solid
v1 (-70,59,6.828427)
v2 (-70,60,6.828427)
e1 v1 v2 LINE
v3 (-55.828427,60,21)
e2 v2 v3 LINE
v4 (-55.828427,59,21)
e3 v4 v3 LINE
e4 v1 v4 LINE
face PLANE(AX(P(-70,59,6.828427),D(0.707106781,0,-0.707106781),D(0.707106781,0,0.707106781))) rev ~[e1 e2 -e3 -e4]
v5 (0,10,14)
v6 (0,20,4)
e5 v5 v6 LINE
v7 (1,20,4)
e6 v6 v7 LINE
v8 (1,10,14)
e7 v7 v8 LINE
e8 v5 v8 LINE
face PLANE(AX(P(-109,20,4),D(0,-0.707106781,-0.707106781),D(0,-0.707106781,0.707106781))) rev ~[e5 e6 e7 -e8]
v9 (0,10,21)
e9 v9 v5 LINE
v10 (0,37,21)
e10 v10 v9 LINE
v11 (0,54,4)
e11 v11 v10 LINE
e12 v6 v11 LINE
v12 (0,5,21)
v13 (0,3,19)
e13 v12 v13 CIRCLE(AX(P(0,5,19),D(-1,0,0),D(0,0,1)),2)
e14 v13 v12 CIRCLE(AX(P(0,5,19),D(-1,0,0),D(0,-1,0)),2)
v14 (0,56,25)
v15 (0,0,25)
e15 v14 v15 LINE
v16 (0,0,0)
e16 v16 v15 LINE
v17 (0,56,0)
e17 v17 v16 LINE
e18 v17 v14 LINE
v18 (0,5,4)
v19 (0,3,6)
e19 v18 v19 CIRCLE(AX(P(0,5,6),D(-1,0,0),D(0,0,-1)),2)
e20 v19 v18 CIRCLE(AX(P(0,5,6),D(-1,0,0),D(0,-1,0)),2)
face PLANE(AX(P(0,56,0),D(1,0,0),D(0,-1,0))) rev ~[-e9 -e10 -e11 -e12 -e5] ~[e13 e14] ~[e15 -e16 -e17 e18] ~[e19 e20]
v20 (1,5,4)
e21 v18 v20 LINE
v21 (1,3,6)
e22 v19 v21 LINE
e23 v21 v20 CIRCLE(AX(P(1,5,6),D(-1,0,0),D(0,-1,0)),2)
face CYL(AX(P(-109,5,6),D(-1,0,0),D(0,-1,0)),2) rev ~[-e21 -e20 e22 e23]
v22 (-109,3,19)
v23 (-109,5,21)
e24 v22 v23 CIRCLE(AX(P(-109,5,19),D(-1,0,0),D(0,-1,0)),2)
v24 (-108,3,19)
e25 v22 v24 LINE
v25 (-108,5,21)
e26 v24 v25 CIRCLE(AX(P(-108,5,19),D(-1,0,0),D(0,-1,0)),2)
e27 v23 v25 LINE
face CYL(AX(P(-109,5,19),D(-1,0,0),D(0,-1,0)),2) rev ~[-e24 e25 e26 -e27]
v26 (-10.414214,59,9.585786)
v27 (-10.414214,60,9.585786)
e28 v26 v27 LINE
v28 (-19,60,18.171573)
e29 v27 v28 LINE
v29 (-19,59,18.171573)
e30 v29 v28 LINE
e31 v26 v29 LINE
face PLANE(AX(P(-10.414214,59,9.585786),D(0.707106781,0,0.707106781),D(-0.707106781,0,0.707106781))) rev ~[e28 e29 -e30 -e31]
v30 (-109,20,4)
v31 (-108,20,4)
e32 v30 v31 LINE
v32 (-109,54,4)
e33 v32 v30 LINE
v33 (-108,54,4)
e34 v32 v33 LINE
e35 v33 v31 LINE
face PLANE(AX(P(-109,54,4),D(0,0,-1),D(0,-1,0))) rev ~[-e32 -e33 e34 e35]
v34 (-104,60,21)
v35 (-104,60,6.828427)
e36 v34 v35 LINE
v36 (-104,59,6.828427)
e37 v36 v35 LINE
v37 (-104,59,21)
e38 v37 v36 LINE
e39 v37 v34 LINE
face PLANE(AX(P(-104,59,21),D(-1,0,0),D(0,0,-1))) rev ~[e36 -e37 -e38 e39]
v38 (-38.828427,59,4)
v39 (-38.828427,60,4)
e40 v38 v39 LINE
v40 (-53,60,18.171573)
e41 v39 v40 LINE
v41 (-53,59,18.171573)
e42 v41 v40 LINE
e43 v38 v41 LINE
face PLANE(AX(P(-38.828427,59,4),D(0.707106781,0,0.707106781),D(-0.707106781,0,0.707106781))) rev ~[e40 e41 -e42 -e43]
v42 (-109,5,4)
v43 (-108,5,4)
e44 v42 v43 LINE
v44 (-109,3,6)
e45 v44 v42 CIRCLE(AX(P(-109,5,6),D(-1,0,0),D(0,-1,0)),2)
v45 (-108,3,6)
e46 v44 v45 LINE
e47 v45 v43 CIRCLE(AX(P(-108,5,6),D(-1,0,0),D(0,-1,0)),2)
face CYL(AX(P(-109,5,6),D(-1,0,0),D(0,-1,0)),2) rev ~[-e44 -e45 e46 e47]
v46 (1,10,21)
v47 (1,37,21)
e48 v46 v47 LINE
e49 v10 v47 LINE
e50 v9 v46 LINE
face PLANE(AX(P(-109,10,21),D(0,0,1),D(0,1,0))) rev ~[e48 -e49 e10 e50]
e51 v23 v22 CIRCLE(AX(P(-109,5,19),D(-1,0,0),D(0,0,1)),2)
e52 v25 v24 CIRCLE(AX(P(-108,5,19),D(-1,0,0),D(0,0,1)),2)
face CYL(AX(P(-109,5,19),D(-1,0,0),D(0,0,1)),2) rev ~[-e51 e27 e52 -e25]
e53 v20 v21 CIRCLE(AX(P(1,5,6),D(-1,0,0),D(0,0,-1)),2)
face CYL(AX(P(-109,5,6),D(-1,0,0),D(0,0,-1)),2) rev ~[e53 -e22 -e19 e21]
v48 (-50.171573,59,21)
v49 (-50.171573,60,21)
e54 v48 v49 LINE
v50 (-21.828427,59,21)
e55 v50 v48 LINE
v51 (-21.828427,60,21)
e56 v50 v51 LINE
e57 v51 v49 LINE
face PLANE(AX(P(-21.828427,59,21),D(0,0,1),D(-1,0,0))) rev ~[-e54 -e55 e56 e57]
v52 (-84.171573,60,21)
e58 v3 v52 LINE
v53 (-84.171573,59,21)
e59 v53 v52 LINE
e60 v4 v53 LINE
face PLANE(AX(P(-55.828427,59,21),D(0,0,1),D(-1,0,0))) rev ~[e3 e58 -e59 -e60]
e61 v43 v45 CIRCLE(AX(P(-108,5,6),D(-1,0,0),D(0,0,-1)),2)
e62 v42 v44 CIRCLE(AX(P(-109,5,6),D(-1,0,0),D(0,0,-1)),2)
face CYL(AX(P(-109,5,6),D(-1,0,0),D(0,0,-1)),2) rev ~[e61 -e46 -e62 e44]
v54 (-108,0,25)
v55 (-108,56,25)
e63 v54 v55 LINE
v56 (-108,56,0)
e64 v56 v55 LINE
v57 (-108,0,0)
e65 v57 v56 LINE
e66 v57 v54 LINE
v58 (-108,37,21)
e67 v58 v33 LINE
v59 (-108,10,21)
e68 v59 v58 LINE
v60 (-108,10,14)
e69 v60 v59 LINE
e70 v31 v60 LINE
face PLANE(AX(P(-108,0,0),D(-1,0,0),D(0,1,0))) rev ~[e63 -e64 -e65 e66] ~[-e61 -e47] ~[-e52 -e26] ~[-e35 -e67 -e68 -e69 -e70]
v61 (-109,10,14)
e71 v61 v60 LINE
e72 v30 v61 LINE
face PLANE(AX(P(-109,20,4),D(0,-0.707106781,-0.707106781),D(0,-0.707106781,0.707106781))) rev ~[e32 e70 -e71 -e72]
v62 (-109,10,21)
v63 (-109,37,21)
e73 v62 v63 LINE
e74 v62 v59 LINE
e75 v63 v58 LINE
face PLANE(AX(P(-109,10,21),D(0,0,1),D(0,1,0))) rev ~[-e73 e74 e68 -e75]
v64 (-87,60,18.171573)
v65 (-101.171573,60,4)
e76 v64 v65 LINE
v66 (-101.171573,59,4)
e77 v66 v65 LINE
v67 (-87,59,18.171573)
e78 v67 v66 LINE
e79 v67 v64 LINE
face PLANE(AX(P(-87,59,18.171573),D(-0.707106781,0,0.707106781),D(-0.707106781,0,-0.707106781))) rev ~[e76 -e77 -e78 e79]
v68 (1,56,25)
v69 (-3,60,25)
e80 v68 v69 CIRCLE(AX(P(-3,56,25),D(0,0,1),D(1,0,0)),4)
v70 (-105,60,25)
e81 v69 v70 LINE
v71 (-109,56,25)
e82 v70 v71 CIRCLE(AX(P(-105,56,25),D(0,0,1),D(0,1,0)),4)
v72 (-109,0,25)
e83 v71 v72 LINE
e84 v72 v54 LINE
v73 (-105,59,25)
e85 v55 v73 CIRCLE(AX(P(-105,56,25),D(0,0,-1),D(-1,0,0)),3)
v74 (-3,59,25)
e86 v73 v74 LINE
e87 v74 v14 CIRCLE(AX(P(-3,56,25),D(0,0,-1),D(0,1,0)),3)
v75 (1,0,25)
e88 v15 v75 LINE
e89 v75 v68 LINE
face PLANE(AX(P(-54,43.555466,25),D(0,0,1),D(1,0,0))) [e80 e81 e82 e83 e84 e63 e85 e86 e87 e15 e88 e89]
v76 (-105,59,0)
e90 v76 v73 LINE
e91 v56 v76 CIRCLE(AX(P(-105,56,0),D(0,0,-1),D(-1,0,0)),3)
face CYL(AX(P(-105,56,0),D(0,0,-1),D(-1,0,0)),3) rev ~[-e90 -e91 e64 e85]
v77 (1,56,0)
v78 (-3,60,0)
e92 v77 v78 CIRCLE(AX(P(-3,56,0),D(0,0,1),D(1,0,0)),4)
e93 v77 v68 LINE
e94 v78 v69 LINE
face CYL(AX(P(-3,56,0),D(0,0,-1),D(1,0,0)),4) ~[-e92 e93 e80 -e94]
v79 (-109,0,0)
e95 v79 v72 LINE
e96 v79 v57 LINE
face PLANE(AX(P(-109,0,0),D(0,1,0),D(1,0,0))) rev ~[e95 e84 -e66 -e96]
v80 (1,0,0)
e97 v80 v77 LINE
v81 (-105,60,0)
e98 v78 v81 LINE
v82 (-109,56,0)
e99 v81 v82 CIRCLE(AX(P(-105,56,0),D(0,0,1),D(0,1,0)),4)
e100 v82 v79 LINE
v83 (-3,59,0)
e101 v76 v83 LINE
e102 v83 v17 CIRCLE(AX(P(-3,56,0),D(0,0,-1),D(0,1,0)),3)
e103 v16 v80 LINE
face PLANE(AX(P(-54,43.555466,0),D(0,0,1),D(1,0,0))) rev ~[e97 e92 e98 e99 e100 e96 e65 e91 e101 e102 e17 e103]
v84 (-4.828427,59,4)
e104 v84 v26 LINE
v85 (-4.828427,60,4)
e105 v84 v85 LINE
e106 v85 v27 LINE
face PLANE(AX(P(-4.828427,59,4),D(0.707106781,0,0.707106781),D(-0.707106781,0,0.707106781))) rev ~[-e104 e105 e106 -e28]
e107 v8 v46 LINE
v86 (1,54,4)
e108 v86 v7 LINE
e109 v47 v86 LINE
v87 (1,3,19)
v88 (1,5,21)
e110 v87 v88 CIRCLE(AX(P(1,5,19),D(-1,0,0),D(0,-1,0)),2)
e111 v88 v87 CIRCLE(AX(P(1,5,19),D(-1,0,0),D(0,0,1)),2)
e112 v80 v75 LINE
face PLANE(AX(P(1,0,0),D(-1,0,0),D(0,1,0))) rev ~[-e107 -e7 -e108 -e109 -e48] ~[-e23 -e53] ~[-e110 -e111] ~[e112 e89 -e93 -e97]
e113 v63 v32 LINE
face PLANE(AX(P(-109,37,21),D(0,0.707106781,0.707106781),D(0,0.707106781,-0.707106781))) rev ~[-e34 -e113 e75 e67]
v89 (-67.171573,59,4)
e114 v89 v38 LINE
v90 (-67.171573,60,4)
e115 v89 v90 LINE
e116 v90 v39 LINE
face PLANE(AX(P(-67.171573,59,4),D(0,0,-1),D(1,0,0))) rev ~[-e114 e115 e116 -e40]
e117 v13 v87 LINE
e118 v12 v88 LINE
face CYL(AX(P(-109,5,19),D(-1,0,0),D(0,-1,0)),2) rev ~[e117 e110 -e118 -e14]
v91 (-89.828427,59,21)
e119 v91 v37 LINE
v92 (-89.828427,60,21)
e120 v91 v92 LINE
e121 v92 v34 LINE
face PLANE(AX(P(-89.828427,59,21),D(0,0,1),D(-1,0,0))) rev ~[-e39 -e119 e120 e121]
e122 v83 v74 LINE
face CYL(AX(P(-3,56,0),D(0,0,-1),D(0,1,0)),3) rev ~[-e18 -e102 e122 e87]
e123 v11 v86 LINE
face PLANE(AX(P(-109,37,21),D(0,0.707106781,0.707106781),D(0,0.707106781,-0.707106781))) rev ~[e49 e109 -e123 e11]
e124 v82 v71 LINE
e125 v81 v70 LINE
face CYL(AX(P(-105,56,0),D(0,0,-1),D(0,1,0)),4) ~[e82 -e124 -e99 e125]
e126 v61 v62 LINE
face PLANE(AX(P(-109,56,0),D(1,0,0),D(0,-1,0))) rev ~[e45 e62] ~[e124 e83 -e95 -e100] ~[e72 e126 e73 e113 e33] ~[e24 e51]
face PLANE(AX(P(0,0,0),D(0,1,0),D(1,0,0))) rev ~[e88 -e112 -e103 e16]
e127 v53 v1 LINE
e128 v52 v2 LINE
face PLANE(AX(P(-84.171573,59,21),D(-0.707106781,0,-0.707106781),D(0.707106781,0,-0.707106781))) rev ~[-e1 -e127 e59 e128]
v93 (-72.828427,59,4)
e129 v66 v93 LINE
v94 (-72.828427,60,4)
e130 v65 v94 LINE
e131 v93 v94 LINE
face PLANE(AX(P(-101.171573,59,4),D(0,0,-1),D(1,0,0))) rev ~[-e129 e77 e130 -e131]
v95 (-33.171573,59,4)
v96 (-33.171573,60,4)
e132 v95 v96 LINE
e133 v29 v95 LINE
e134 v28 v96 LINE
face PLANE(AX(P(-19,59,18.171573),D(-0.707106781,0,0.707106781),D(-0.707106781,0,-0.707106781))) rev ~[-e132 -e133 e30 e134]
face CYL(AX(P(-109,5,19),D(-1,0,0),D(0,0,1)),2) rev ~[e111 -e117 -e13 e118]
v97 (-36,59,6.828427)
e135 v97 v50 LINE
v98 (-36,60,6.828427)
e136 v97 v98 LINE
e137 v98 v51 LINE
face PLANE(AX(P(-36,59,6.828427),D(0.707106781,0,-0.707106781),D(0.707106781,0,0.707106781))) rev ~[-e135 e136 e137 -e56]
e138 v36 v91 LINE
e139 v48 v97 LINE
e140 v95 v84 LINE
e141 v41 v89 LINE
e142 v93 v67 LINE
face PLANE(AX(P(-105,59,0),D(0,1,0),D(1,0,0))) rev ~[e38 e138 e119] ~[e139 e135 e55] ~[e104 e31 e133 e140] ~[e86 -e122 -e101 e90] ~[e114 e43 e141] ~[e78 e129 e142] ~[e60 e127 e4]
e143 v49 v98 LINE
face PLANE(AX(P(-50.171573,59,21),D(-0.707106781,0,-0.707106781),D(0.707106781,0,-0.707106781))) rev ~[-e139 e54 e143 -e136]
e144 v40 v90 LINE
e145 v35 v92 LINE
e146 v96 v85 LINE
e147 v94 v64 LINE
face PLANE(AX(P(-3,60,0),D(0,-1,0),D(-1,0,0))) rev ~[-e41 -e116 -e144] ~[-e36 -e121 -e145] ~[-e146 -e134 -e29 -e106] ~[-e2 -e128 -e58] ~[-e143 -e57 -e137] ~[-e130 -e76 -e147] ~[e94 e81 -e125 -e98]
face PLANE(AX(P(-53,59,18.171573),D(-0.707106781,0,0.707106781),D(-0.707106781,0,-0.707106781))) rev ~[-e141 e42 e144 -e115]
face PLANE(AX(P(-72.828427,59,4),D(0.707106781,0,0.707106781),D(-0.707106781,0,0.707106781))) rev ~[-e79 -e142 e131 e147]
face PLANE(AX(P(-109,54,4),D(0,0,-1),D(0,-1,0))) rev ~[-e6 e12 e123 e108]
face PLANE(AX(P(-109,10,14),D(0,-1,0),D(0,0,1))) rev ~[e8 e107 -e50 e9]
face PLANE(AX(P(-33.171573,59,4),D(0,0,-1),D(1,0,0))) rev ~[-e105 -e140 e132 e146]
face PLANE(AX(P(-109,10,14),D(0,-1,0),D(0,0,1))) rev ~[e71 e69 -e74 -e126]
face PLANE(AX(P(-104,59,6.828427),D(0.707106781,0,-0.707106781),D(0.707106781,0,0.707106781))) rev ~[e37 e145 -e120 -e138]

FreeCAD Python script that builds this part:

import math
import FreeCAD as App
import Part
import Sketcher

V = App.Vector

doc = App.newDocument("Part")
body = doc.addObject("PartDesign::Body", "Body")

# Sketch on XY plane
sketch1 = body.newObject("Sketcher::SketchObject", "Sketch")
sketch1.AttachmentSupport = (doc.getObject("XY_Plane"), [""])
sketch1.MapMode = "FlatFace"
sketch1.addGeometry(Part.LineSegment(V(0, 56, 0), V(0, 0, 0)), False)
sketch1.addGeometry(Part.LineSegment(V(0, 0, 0), V(1, 0, 0)), False)
sketch1.addGeometry(Part.LineSegment(V(1, 0, 0), V(1, 56, 0)), False)
sketch1.addGeometry(Part.ArcOfCircle(Part.Circle(V(-3, 56, 0), V(0, 0, 1), 4), math.radians(0), math.radians(90)), False)
sketch1.addGeometry(Part.LineSegment(V(-3, 60, 0), V(-105, 60, 0)), False)
sketch1.addGeometry(Part.ArcOfCircle(Part.Circle(V(-105, 56, 0), V(0, 0, 1), 4), math.radians(90), math.radians(180)), False)
sketch1.addGeometry(Part.LineSegment(V(-109, 56, 0), V(-109, 0, 0)), False)
sketch1.addGeometry(Part.LineSegment(V(-109, 0, 0), V(-108, 0, 0)), False)
sketch1.addGeometry(Part.LineSegment(V(-108, 0, 0), V(-108, 56, 0)), False)
sketch1.addGeometry(Part.ArcOfCircle(Part.Circle(V(-105, 56, 0), V(0, 0, 1), 3), math.radians(90), math.radians(180)), False)
sketch1.addGeometry(Part.LineSegment(V(-105, 59, 0), V(-3, 59, 0)), False)
sketch1.addGeometry(Part.ArcOfCircle(Part.Circle(V(-3, 56, 0), V(0, 0, 1), 3), math.radians(0), math.radians(90)), False)
sketch1.addConstraint(Sketcher.Constraint("Coincident", 0, 2, 1, 1))
sketch1.addConstraint(Sketcher.Constraint("Coincident", 1, 2, 2, 1))
sketch1.addConstraint(Sketcher.Constraint("Tangent", 2, 2, 3, 1))
sketch1.addConstraint(Sketcher.Constraint("Tangent", 3, 2, 4, 1))
sketch1.addConstraint(Sketcher.Constraint("Tangent", 4, 2, 5, 1))
sketch1.addConstraint(Sketcher.Constraint("Tangent", 5, 2, 6, 1))
sketch1.addConstraint(Sketcher.Constraint("Coincident", 6, 2, 7, 1))
sketch1.addConstraint(Sketcher.Constraint("Coincident", 7, 2, 8, 1))
sketch1.addConstraint(Sketcher.Constraint("Tangent", 8, 2, 9, 2))
sketch1.addConstraint(Sketcher.Constraint("Tangent", 9, 1, 10, 1))
sketch1.addConstraint(Sketcher.Constraint("Tangent", 10, 2, 11, 2))
sketch1.addConstraint(Sketcher.Constraint("Tangent", 11, 1, 0, 1))
sketch1.addConstraint(Sketcher.Constraint("Vertical", 0))
sketch1.addConstraint(Sketcher.Constraint("Horizontal", 1))
sketch1.addConstraint(Sketcher.Constraint("Vertical", 2))
sketch1.addConstraint(Sketcher.Constraint("Horizontal", 4))
sketch1.addConstraint(Sketcher.Constraint("Vertical", 6))
sketch1.addConstraint(Sketcher.Constraint("Horizontal", 7))
sketch1.addConstraint(Sketcher.Constraint("Vertical", 8))
sketch1.addConstraint(Sketcher.Constraint("Horizontal", 10))
sketch1.addConstraint(Sketcher.Constraint("Coincident", 0, 2, -1, 1))
sketch1.addConstraint(Sketcher.Constraint("Coincident", 9, 3, 5, 3))
sketch1.addConstraint(Sketcher.Constraint("Coincident", 11, 3, 3, 3))
sketch1.addConstraint(Sketcher.Constraint("Equal", 3, 5))
sketch1.addConstraint(Sketcher.Constraint("PointOnObject", 6, 2, -1))
sketch1.addConstraint(Sketcher.Constraint("Radius", 3, 4.0))
sketch1.addConstraint(Sketcher.Constraint("Radius", 9, 3.0))
sketch1.addConstraint(Sketcher.Constraint("DistanceX", 4, 2, 4, 1, 102.0))
sketch1.addConstraint(Sketcher.Constraint("DistanceY", 0, 2, 0, 1, 56.0))
pad1 = body.newObject("PartDesign::Pad", "Pad")
pad1.Profile = sketch1
pad1.Length = 25

# Sketch on XZ plane
sketch2 = body.newObject("Sketcher::SketchObject", "Sketch001")
sketch2.AttachmentSupport = (doc.getObject("XZ_Plane"), [""])
sketch2.MapMode = "FlatFace"
sketch2.AttachmentOffset = App.Placement(V(0, 0, -59), App.Rotation())
sketch2.addGeometry(Part.LineSegment(V(-56, 21, 0), V(-84, 21, 0)), False)
sketch2.addGeometry(Part.LineSegment(V(-84, 21, 0), V(-70, 7, 0)), False)
sketch2.addGeometry(Part.LineSegment(V(-70, 7, 0), V(-56, 21, 0)), False)
sketch2.addGeometry(Part.LineSegment(V(-36, 7, 0), V(-22, 21, 0)), False)
sketch2.addGeometry(Part.LineSegment(V(-22, 21, 0), V(-50, 21, 0)), False)
sketch2.addGeometry(Part.LineSegment(V(-50, 21, 0), V(-36, 7, 0)), False)
sketch2.addGeometry(Part.LineSegment(V(-101, 4, 0), V(-73, 4, 0)), False)
sketch2.addGeometry(Part.LineSegment(V(-73, 4, 0), V(-87, 18, 0)), False)
sketch2.addGeometry(Part.LineSegment(V(-87, 18, 0), V(-101, 4, 0)), False)
sketch2.addGeometry(Part.LineSegment(V(-104, 21, 0), V(-104, 7, 0)), False)
sketch2.addGeometry(Part.LineSegment(V(-104, 7, 0), V(-90, 21, 0)), False)
sketch2.addGeometry(Part.LineSegment(V(-90, 21, 0), V(-104, 21, 0)), False)
sketch2.addGeometry(Part.LineSegment(V(-67, 4, 0), V(-39, 4, 0)), False)
sketch2.addGeometry(Part.LineSegment(V(-39, 4, 0), V(-53, 18, 0)), False)
sketch2.addGeometry(Part.LineSegment(V(-53, 18, 0), V(-67, 4, 0)), False)
sketch2.addGeometry(Part.LineSegment(V(-10, 10, 0), V(-19, 18, 0)), False)
sketch2.addGeometry(Part.LineSegment(V(-19, 18, 0), V(-33, 4, 0)), False)
sketch2.addGeometry(Part.LineSegment(V(-33, 4, 0), V(-5, 4, 0)), False)
sketch2.addGeometry(Part.LineSegment(V(-5, 4, 0), V(-10, 10, 0)), False)
sketch2.addConstraint(Sketcher.Constraint("Coincident", 0, 2, 1, 1))
sketch2.addConstraint(Sketcher.Constraint("Coincident", 1, 2, 2, 1))
sketch2.addConstraint(Sketcher.Constraint("Coincident", 2, 2, 0, 1))
sketch2.addConstraint(Sketcher.Constraint("Coincident", 3, 2, 4, 1))
sketch2.addConstraint(Sketcher.Constraint("Coincident", 4, 2, 5, 1))
sketch2.addConstraint(Sketcher.Constraint("Coincident", 5, 2, 3, 1))
sketch2.addConstraint(Sketcher.Constraint("Coincident", 6, 2, 7, 1))
sketch2.addConstraint(Sketcher.Constraint("Coincident", 7, 2, 8, 1))
sketch2.addConstraint(Sketcher.Constraint("Coincident", 8, 2, 6, 1))
sketch2.addConstraint(Sketcher.Constraint("Coincident", 9, 2, 10, 1))
sketch2.addConstraint(Sketcher.Constraint("Coincident", 10, 2, 11, 1))
sketch2.addConstraint(Sketcher.Constraint("Coincident", 11, 2, 9, 1))
sketch2.addConstraint(Sketcher.Constraint("Coincident", 12, 2, 13, 1))
sketch2.addConstraint(Sketcher.Constraint("Coincident", 13, 2, 14, 1))
sketch2.addConstraint(Sketcher.Constraint("Coincident", 14, 2, 12, 1))
sketch2.addConstraint(Sketcher.Constraint("Coincident", 15, 2, 16, 1))
sketch2.addConstraint(Sketcher.Constraint("Coincident", 16, 2, 17, 1))
sketch2.addConstraint(Sketcher.Constraint("Coincident", 17, 2, 18, 1))
sketch2.addConstraint(Sketcher.Constraint("Coincident", 18, 2, 15, 1))
sketch2.addConstraint(Sketcher.Constraint("Horizontal", 0))
sketch2.addConstraint(Sketcher.Constraint("Horizontal", 4))
sketch2.addConstraint(Sketcher.Constraint("Horizontal", 6))
sketch2.addConstraint(Sketcher.Constraint("Vertical", 9))
sketch2.addConstraint(Sketcher.Constraint("Horizontal", 11))
sketch2.addConstraint(Sketcher.Constraint("Horizontal", 12))
sketch2.addConstraint(Sketcher.Constraint("Horizontal", 17))
sketch2.addConstraint(Sketcher.Constraint("Perpendicular", 1, 2))
sketch2.addConstraint(Sketcher.Constraint("Parallel", 2, 3))
sketch2.addConstraint(Sketcher.Constraint("Perpendicular", 3, 5))
sketch2.addConstraint(Sketcher.Constraint("Parallel", 5, 7))
sketch2.addConstraint(Sketcher.Constraint("Perpendicular", 7, 8))
sketch2.addConstraint(Sketcher.Constraint("Parallel", 8, 10))
sketch2.addConstraint(Sketcher.Constraint("Perpendicular", 10, 13))
sketch2.addConstraint(Sketcher.Constraint("Perpendicular", 13, 14))
sketch2.addConstraint(Sketcher.Constraint("Perpendicular", 14, 15))
sketch2.addConstraint(Sketcher.Constraint("Perpendicular", 15, 16))
sketch2.addConstraint(Sketcher.Constraint("Perpendicular", 16, 18))
sketch2.addConstraint(Sketcher.Constraint("Horizontal", 2, 2, 3, 2))
sketch2.addConstraint(Sketcher.Constraint("Horizontal", 1, 2, 5, 2))
sketch2.addConstraint(Sketcher.Constraint("Horizontal", 5, 2, 9, 2))
sketch2.addConstraint(Sketcher.Constraint("Horizontal", 4, 2, 10, 2))
sketch2.addConstraint(Sketcher.Constraint("Horizontal", 8, 2, 12, 2))
sketch2.addConstraint(Sketcher.Constraint("Horizontal", 7, 2, 13, 2))
sketch2.addConstraint(Sketcher.Constraint("Horizontal", 13, 2, 15, 2))
sketch2.addConstraint(Sketcher.Constraint("Horizontal", 14, 2, 16, 2))
sketch2.addConstraint(Sketcher.Constraint("Equal", 4, 6))
sketch2.addConstraint(Sketcher.Constraint("Equal", 11, 9))
sketch2.addConstraint(Sketcher.Constraint("DistanceY", -1, 1, 0, 2, 21.0))
sketch2.addConstraint(Sketcher.Constraint("DistanceX", 1, 2, -1, 1, 70.0))
sketch2.addConstraint(Sketcher.Constraint("DistanceX", 5, 2, -1, 1, 36.0))
sketch2.addConstraint(Sketcher.Constraint("DistanceY", -1, 1, 6, 2, 4.0))
sketch2.addConstraint(Sketcher.Constraint("DistanceX", 7, 2, -1, 1, 87.0))
sketch2.addConstraint(Sketcher.Constraint("DistanceX", 9, 2, -1, 1, 104.0))
sketch2.addConstraint(Sketcher.Constraint("DistanceX", 13, 2, -1, 1, 53.0))
sketch2.addConstraint(Sketcher.Constraint("DistanceX", 15, 2, -1, 1, 19.0))
sketch2.addConstraint(Sketcher.Constraint("Distance", 1, 20.041631))
sketch2.addConstraint(Sketcher.Constraint("DistanceX", 16, 2, 18, 2, 22.757359))
pocket1 = body.newObject("PartDesign::Pocket", "Pocket")
pocket1.Profile = sketch2
pocket1.Length = 25

# Sketch on YZ plane
sketch3 = body.newObject("Sketcher::SketchObject", "Sketch002")
sketch3.AttachmentSupport = (doc.getObject("YZ_Plane"), [""])
sketch3.MapMode = "FlatFace"
sketch3.AttachmentOffset = App.Placement(V(0, 0, -109), App.Rotation())
sketch3.addGeometry(Part.ArcOfCircle(Part.Circle(V(5, 19, 0), V(0, 0, 1), 2), math.radians(180), math.radians(450)), False)
sketch3.addGeometry(Part.ArcOfCircle(Part.Circle(V(5, 19, 0), V(0, 0, 1), 2), math.radians(90), math.radians(180)), False)
sketch3.addGeometry(Part.ArcOfCircle(Part.Circle(V(5, 6, 0), V(0, 0, 1), 2), math.radians(-90), math.radians(180)), False)
sketch3.addGeometry(Part.ArcOfCircle(Part.Circle(V(5, 6, 0), V(0, 0, 1), 2), math.radians(180), math.radians(270)), False)
sketch3.addGeometry(Part.LineSegment(V(10, 14, 0), V(10, 21, 0)), False)
sketch3.addGeometry(Part.LineSegment(V(10, 21, 0), V(37, 21, 0)), False)
sketch3.addGeometry(Part.LineSegment(V(37, 21, 0), V(54, 4, 0)), False)
sketch3.addGeometry(Part.LineSegment(V(54, 4, 0), V(20, 4, 0)), False)
sketch3.addGeometry(Part.LineSegment(V(20, 4, 0), V(10, 14, 0)), False)
sketch3.addConstraint(Sketcher.Constraint("Tangent", 0, 1, 1, 2))
sketch3.addConstraint(Sketcher.Constraint("Coincident", 1, 1, 0, 2))
sketch3.addConstraint(Sketcher.Constraint("Tangent", 2, 1, 3, 2))
sketch3.addConstraint(Sketcher.Constraint("Coincident", 3, 1, 2, 2))
sketch3.addConstraint(Sketcher.Constraint("Coincident", 4, 2, 5, 1))
sketch3.addConstraint(Sketcher.Constraint("Coincident", 5, 2, 6, 1))
sketch3.addConstraint(Sketcher.Constraint("Coincident", 6, 2, 7, 1))
sketch3.addConstraint(Sketcher.Constraint("Coincident", 7, 2, 8, 1))
sketch3.addConstraint(Sketcher.Constraint("Coincident", 8, 2, 4, 1))
sketch3.addConstraint(Sketcher.Constraint("Vertical", 4))
sketch3.addConstraint(Sketcher.Constraint("Horizontal", 5))
sketch3.addConstraint(Sketcher.Constraint("Horizontal", 7))
sketch3.addConstraint(Sketcher.Constraint("Equal", 1, 2))
sketch3.addConstraint(Sketcher.Constraint("Parallel", 6, 8))
sketch3.addConstraint(Sketcher.Constraint("Horizontal", 1, 3, 0, 1))
sketch3.addConstraint(Sketcher.Constraint("Horizontal", 2, 3, 3, 1))
sketch3.addConstraint(Sketcher.Constraint("Horizontal", 1, 1, 4, 2))
sketch3.addConstraint(Sketcher.Constraint("Horizontal", 2, 1, 6, 2))
sketch3.addConstraint(Sketcher.Constraint("Vertical", 1, 3, 2, 3))
sketch3.addConstraint(Sketcher.Constraint("Vertical", 3, 3, 1, 1))
sketch3.addConstraint(Sketcher.Constraint("Vertical", 1, 1, 2, 1))
sketch3.addConstraint(Sketcher.Constraint("Radius", 0, 2.0))
sketch3.addConstraint(Sketcher.Constraint("DistanceX", 5, 1, 5, 2, 27.0))
sketch3.addConstraint(Sketcher.Constraint("DistanceX", 7, 2, 7, 1, 34.0))
sketch3.addConstraint(Sketcher.Constraint("DistanceY", 4, 1, 4, 2, 7.0))
sketch3.addConstraint(Sketcher.Constraint("DistanceX", -1, 1, 0, 3, 5.0))
sketch3.addConstraint(Sketcher.Constraint("DistanceY", -1, 1, 0, 3, 19.0))
sketch3.addConstraint(Sketcher.Constraint("DistanceY", -1, 1, 2, 3, 6.0))
sketch3.addConstraint(Sketcher.Constraint("DistanceX", -1, 1, 4, 2, 10.0))
pocket2 = body.newObject("PartDesign::Pocket", "Pocket001")
pocket2.Profile = sketch3
pocket2.Length = 200
pocket2.Reversed = True

doc.recompute()
